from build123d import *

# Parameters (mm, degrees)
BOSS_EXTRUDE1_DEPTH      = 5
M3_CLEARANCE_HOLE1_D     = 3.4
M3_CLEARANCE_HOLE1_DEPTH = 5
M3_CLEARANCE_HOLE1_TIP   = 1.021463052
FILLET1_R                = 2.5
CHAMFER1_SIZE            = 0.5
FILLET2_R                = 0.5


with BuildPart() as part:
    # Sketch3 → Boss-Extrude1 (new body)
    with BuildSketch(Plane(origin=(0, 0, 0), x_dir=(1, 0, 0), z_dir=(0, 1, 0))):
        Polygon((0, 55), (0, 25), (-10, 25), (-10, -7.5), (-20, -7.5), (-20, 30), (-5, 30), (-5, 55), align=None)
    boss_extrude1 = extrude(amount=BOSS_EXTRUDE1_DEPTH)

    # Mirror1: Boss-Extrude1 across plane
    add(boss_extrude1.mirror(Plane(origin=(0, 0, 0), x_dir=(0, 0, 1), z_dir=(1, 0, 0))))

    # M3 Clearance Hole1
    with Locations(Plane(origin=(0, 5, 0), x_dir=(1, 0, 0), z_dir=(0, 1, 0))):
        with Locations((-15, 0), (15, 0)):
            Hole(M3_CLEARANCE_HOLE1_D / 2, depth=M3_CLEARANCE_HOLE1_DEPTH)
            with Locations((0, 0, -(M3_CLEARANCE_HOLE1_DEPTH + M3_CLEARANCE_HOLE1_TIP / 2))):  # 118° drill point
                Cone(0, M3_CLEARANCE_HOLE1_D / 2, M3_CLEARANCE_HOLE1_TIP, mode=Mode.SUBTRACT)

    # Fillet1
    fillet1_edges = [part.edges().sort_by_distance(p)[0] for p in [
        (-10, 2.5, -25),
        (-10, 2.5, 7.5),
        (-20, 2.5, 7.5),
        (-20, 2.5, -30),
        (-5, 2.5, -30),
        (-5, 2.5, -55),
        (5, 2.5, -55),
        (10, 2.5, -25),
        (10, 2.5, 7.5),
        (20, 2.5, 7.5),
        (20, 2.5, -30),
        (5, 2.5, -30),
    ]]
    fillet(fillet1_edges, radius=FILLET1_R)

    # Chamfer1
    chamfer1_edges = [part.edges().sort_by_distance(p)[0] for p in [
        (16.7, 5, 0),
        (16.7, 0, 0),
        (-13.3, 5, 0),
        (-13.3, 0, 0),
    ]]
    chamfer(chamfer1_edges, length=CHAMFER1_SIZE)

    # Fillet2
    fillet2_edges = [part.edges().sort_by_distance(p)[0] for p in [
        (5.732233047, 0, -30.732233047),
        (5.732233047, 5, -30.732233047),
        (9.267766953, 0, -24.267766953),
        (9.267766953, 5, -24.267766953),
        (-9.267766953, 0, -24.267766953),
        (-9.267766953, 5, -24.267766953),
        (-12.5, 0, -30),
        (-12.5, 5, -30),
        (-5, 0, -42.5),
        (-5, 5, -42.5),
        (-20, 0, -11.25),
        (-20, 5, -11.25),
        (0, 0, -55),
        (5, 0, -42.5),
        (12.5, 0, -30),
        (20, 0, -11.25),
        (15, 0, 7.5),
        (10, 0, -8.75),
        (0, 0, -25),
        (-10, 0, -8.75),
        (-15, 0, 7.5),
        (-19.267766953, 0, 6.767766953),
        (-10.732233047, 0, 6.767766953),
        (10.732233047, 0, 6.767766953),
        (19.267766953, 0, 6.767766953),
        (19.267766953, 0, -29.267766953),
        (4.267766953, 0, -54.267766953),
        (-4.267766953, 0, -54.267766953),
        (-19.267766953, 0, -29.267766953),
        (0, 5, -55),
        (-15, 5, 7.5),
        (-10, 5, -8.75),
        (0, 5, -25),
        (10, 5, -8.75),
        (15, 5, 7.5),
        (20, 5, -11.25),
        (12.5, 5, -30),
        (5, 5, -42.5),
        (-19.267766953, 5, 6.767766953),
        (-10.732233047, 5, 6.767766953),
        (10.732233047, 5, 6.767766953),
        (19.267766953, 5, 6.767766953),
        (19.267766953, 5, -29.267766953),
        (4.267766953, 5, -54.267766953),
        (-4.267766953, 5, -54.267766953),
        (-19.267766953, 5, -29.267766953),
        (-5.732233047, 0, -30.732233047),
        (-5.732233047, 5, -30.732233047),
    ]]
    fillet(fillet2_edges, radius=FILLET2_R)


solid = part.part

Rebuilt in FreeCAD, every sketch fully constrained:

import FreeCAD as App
import Part
import Sketcher

V = App.Vector
Q = App.Units.Quantity


def edges_at(feature, points):
    """Names of the edges that pass closest to the given points."""
    edges = feature.Shape.Edges
    near = lambda p: min(range(len(edges)), key=lambda i: edges[i].distToShape(Part.Vertex(*p))[0])
    return sorted({f"Edge{near(p) + 1}" for p in points})


def add_polygon(sketch, points):
    """Adds a closed chain of lines whose ends are joined by coincident constraints."""
    first, n = sketch.GeometryCount, len(points)
    for a, b in zip(points, points[1:] + points[:1]):
        sketch.addGeometry(Part.LineSegment(App.Vector(*a, 0), App.Vector(*b, 0)), False)
    for i in range(n):
        sketch.addConstraint(Sketcher.Constraint("Coincident", first + i, 2, first + (i + 1) % n, 1))

doc = App.newDocument("Part")
params = doc.addObject("Spreadsheet::Sheet", "Params")
for row, (alias, value) in enumerate([
    ("sketch1_width", "5 mm"),
    ("sketch1_width2", "15 mm"),
    ("sketch1_height", "30 mm"),
    ("sketch1_height2", "25 mm"),
    ("sketch1_height3", "37.5 mm"),
    ("pad1_length", "5 mm"),
    ("sketch2_diameter", "3.4 mm"),
    ("hole_diameter", "3.4 mm"),
    ("hole_depth", "5 mm"),
    ("fillet_radius", "2.5 mm"),
    ("chamfer_size", "0.5 mm"),
    ("fillet2_radius", "0.5 mm"),
], start=1):
    params.set(f"A{row}", alias)
    params.set(f"B{row}", "=" + value)
    params.setAlias(f"B{row}", alias)

body = doc.addObject("PartDesign::Body", "Body")

# Sketch on XZ plane
sketch1 = body.newObject("Sketcher::SketchObject", "Sketch")
sketch1.AttachmentSupport = (doc.getObject("XZ_Plane"), [""])
sketch1.MapMode = "FlatFace"
add_polygon(sketch1, [(0, -25), (0, -55), (-5, -55), (-5, -30), (-20, -30), (-20, 8), (-10, 8), (-10, -25)])  # lines 0-7
sketch1.addConstraint([
    Sketcher.Constraint("Vertical", 0),
    Sketcher.Constraint("Horizontal", 1),
    Sketcher.Constraint("Vertical", 2),
    Sketcher.Constraint("Horizontal", 3),
    Sketcher.Constraint("Vertical", 4),
    Sketcher.Constraint("Horizontal", 5),
    Sketcher.Constraint("Vertical", 6),
    Sketcher.Constraint("Horizontal", 7),
    Sketcher.Constraint("PointOnObject", 0, 2, -2),
    Sketcher.Constraint("Equal", 5, 7),
    Sketcher.Constraint("DistanceX", 1, 2, 1, 1, Q("5 mm")),
    Sketcher.Constraint("DistanceX", 3, 2, 3, 1, Q("15 mm")),
    Sketcher.Constraint("DistanceY", 0, 2, 0, 1, Q("30 mm")),
    Sketcher.Constraint("DistanceY", 2, 1, 2, 2, Q("25 mm")),
    Sketcher.Constraint("DistanceY", 4, 1, 4, 2, Q("37.5 mm")),
    Sketcher.Constraint("DistanceY", 0, 2, -1, 1, Q("55 mm")),
])
sketch1.setExpression("Constraints[18]", "Params.sketch1_width")
sketch1.setExpression("Constraints[19]", "Params.sketch1_width2")
sketch1.setExpression("Constraints[20]", "Params.sketch1_height")
sketch1.setExpression("Constraints[21]", "Params.sketch1_height2")
sketch1.setExpression("Constraints[22]", "Params.sketch1_height3")
pad1 = body.newObject("PartDesign::Pad", "Pad")
pad1.Profile = sketch1
pad1.setExpression("Length", "Params.pad1_length")
pad1.Reversed = True
doc.recompute()

mirrored = body.newObject("PartDesign::Mirrored", "Mirrored")
mirrored.Originals = [pad1]
mirrored.MirrorPlane = (doc.getObject("YZ_Plane"), [""])
body.Tip = mirrored

# Sketch on XZ plane
sketch2 = body.newObject("Sketcher::SketchObject", "Sketch001")
sketch2.AttachmentSupport = (doc.getObject("XZ_Plane"), [""])
sketch2.MapMode = "FlatFace"
sketch2.AttachmentOffset = App.Placement(V(0, 0, -5), App.Rotation())
sketch2.addGeometry([
    Part.Circle(V(-15, 0, 0), V(0, 0, 1), 1.7),
    Part.Circle(V(15, 0, 0), V(0, 0, 1), 1.7),
], False)
sketch2.addConstraint([
    Sketcher.Constraint("Equal", 0, 1),
    Sketcher.Constraint("Symmetric", 0, 3, 1, 3, -1, 1),
    Sketcher.Constraint("PointOnObject", 0, 3, -1),
    Sketcher.Constraint("Diameter", 0, Q("3.4 mm")),
    Sketcher.Constraint("DistanceX", 0, 3, -1, 1, Q("15 mm")),
])
sketch2.setExpression("Constraints[3]", "Params.sketch2_diameter")
doc.recompute()
hole = body.newObject("PartDesign::Hole", "Hole")
hole.Profile = sketch2
hole.ThreadType = "None"
hole.setExpression("Diameter", "Params.hole_diameter")
hole.DepthType = "Dimension"
hole.setExpression("Depth", "Params.hole_depth")
hole.DrillPoint = "Angled"
hole.DrillPointAngle = 118
hole.Reversed = True
doc.recompute()

fillet = body.newObject("PartDesign::Fillet", "Fillet")
fillet.Base = (hole, edges_at(hole, [
    (-10, 2.5, -25),
    (-10, 2.5, 7.5),
    (-20, 2.5, 7.5),
    (-20, 2.5, -30),
    (-5, 2.5, -30),
    (-5, 2.5, -55),
    (5, 2.5, -55),
    (10, 2.5, -25),
    (10, 2.5, 7.5),
    (20, 2.5, 7.5),
    (20, 2.5, -30),
    (5, 2.5, -30),
]))
fillet.setExpression("Radius", "Params.fillet_radius")
doc.recompute()

chamfer = body.newObject("PartDesign::Chamfer", "Chamfer")
chamfer.Base = (fillet, edges_at(fillet, [
    (16.7, 5, 0),
    (16.7, 0, 0),
    (-13.3, 5, 0),
    (-13.3, 0, 0),
]))
chamfer.setExpression("Size", "Params.chamfer_size")
doc.recompute()

fillet2 = body.newObject("PartDesign::Fillet", "Fillet001")
fillet2.Base = (chamfer, edges_at(chamfer, [
    (5.732, 0, -30.732),
    (5.732, 5, -30.732),
    (9.268, 0, -24.268),
    (9.268, 5, -24.268),
    (-9.268, 0, -24.268),
    (-9.268, 5, -24.268),
    (-12.5, 0, -30),
    (-12.5, 5, -30),
    (-5, 0, -42.5),
    (-5, 5, -42.5),
    (-20, 0, -11.25),
    (-20, 5, -11.25),
    (0, 0, -55),
    (5, 0, -42.5),
    (12.5, 0, -30),
    (20, 0, -11.25),
    (15, 0, 7.5),
    (10, 0, -8.75),
    (0, 0, -25),
    (-10, 0, -8.75),
    (-15, 0, 7.5),
    (-19.268, 0, 6.768),
    (-10.732, 0, 6.768),
    (10.732, 0, 6.768),
    (19.268, 0, 6.768),
    (19.268, 0, -29.268),
    (4.268, 0, -54.268),
    (-4.268, 0, -54.268),
    (-19.268, 0, -29.268),
    (0, 5, -55),
    (-15, 5, 7.5),
    (-10, 5, -8.75),
    (0, 5, -25),
    (10, 5, -8.75),
    (15, 5, 7.5),
    (20, 5, -11.25),
    (12.5, 5, -30),
    (5, 5, -42.5),
    (-19.268, 5, 6.768),
    (-10.732, 5, 6.768),
    (10.732, 5, 6.768),
    (19.268, 5, 6.768),
    (19.268, 5, -29.268),
    (4.268, 5, -54.268),
    (-4.268, 5, -54.268),
    (-19.268, 5, -29.268),
    (-5.732, 0, -30.732),
    (-5.732, 5, -30.732),
]))
fillet2.setExpression("Radius", "Params.fillet2_radius")

doc.recompute()
